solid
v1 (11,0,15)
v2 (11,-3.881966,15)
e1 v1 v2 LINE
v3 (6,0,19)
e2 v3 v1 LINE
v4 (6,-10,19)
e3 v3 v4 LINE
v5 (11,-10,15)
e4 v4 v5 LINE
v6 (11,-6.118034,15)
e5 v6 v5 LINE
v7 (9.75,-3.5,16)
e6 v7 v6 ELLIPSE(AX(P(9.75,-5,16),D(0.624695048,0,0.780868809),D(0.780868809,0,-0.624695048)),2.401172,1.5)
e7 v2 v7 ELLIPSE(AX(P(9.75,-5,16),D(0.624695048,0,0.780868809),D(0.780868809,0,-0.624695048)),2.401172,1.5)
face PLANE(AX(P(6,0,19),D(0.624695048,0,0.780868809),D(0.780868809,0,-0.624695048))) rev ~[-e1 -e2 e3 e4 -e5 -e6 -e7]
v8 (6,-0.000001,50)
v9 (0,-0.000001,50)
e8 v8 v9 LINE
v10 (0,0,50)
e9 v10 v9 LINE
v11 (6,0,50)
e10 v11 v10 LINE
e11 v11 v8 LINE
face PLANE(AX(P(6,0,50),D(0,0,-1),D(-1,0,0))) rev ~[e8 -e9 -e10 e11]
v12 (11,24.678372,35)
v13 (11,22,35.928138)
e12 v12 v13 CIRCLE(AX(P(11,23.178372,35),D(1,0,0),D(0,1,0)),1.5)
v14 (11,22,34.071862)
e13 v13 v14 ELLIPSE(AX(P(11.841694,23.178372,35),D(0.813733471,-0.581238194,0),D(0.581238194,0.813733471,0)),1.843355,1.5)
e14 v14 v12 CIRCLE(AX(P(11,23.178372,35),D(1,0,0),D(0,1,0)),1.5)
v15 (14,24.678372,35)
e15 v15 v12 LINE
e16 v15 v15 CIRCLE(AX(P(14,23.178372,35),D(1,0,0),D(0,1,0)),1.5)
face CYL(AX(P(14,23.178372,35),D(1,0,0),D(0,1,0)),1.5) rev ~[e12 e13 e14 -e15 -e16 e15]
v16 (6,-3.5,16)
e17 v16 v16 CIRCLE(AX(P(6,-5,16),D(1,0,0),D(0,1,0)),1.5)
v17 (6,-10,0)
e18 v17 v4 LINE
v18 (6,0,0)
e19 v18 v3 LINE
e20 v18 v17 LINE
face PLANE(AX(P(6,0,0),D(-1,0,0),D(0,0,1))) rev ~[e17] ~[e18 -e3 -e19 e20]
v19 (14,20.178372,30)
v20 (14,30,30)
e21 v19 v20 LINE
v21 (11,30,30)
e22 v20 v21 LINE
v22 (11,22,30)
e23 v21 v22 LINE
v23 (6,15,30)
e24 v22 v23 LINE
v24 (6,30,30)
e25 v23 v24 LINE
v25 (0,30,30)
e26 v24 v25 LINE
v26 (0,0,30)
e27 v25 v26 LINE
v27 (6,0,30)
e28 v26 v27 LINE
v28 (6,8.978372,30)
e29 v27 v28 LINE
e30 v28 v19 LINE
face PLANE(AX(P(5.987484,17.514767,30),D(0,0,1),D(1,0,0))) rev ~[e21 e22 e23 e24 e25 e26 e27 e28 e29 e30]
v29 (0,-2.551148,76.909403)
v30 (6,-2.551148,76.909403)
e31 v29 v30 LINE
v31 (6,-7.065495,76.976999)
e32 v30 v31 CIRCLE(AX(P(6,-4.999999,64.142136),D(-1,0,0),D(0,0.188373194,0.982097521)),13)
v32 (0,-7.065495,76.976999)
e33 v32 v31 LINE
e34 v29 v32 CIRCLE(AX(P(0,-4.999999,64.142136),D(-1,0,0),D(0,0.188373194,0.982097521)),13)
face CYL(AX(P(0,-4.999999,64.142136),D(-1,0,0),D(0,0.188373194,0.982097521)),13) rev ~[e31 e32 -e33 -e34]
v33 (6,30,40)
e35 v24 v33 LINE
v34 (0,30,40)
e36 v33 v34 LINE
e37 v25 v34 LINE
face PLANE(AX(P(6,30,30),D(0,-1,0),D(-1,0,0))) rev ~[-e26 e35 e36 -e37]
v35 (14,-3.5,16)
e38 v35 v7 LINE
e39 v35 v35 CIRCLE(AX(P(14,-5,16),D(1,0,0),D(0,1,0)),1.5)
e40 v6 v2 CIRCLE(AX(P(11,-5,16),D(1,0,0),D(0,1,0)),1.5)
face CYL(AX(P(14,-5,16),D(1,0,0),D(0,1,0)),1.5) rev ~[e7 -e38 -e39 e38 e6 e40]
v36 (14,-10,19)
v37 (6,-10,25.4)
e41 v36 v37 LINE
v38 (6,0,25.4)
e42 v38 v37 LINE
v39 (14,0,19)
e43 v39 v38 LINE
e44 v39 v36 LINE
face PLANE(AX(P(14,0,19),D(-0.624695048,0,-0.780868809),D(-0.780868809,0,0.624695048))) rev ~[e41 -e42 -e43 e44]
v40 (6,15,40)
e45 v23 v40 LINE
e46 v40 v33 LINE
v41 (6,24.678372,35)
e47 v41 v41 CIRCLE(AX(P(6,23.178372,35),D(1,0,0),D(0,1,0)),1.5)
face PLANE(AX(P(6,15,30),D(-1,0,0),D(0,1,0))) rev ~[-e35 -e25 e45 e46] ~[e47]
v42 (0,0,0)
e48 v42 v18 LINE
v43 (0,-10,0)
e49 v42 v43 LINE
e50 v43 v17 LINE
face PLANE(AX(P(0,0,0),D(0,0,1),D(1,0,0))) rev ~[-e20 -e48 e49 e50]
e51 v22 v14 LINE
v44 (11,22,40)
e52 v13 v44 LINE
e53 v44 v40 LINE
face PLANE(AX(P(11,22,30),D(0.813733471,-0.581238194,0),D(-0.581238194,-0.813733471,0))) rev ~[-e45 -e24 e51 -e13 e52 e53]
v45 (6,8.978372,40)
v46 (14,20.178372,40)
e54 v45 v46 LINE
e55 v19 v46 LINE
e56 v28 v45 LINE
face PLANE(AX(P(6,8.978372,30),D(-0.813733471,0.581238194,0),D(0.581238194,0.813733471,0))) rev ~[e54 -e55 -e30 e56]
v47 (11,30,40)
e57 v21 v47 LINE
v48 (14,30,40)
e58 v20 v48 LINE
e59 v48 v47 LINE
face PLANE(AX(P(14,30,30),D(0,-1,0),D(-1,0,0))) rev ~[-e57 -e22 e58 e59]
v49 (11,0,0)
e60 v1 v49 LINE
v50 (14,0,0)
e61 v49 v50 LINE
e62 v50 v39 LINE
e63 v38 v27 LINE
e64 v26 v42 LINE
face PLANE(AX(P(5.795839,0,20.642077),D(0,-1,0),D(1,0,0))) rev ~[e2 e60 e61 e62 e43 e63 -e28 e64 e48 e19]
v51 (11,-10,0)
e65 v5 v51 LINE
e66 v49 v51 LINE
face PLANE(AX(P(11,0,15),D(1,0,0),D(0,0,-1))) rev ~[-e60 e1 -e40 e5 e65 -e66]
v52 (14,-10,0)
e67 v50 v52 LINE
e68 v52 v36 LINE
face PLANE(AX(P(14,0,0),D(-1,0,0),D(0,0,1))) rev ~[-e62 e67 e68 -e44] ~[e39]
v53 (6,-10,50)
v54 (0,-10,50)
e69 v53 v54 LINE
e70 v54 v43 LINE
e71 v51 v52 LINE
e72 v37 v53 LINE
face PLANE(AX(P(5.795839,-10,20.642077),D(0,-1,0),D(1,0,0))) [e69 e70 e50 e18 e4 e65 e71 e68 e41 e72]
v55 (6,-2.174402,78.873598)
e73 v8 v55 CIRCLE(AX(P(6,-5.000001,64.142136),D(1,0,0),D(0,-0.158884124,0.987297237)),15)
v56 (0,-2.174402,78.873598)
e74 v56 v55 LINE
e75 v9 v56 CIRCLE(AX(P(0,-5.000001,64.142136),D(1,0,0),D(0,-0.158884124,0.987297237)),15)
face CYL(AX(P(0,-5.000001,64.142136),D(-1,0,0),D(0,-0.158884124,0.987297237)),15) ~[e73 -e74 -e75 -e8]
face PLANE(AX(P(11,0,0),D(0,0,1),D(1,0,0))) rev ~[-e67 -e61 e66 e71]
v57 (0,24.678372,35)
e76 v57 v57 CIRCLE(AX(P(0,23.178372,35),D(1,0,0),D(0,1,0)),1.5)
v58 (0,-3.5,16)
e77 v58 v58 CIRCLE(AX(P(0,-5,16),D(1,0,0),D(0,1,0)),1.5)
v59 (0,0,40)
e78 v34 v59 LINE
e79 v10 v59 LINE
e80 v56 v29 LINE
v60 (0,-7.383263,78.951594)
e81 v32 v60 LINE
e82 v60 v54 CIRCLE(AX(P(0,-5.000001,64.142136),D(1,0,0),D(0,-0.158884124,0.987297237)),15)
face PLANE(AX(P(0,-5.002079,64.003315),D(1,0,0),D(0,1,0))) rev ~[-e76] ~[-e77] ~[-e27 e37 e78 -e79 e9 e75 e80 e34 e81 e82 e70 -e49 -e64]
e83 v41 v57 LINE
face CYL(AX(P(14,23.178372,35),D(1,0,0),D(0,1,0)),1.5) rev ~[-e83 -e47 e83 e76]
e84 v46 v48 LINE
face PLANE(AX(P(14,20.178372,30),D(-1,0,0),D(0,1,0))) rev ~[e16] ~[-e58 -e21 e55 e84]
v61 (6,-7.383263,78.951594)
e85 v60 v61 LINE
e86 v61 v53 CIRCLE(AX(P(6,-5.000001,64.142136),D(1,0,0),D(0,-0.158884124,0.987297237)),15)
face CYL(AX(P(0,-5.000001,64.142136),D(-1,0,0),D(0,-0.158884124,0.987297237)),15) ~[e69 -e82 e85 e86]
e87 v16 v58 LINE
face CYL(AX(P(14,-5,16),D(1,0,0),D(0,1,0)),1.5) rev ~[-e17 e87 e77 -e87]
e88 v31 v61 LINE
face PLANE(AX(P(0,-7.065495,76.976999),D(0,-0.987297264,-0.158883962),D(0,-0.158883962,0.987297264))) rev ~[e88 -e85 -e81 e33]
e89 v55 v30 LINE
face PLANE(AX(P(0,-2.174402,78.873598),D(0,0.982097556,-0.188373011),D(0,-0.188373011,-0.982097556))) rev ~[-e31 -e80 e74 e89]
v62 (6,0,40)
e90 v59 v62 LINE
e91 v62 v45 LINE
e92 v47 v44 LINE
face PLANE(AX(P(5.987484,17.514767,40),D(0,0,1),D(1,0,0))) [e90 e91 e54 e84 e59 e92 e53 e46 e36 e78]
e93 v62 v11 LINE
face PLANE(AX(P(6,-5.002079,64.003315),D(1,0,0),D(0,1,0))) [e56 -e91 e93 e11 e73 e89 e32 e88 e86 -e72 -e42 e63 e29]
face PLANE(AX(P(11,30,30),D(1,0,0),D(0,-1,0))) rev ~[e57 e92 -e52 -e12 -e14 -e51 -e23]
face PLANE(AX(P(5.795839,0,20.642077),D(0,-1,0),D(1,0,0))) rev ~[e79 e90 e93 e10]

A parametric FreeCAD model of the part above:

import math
import FreeCAD as App
import Part
import Sketcher
Q = App.Units.Quantity


def add_polygon(sketch, points):
    """Adds a closed chain of lines whose ends are joined by coincident constraints."""
    first, n = sketch.GeometryCount, len(points)
    for a, b in zip(points, points[1:] + points[:1]):
        sketch.addGeometry(Part.LineSegment(App.Vector(*a, 0), App.Vector(*b, 0)), False)
    for i in range(n):
        sketch.addConstraint(Sketcher.Constraint("Coincident", first + i, 2, first + (i + 1) % n, 1))

doc = App.newDocument("Part")
body = doc.addObject("PartDesign::Body", "Body")

sketch1 = doc.addObject("Sketcher::SketchObject", "Sketch")
body.addObject(sketch1)
sketch1.AttachmentSupport = (doc.XZ_Plane, [""])
sketch1.MapMode = "FlatFace"
add_polygon(sketch1, [(0, 50), (0, 0), (6, 0), (6, 19), (11, 15), (11, 0), (14, 0), (14, 19), (6, 25.4), (6, 50)])
sketch1.addConstraint([
    Sketcher.Constraint("Vertical", 0),
    Sketcher.Constraint("Horizontal", 1),
    Sketcher.Constraint("Vertical", 2),
    Sketcher.Constraint("Vertical", 4),
    Sketcher.Constraint("Horizontal", 5),
    Sketcher.Constraint("Vertical", 6),
    Sketcher.Constraint("Vertical", 8),
    Sketcher.Constraint("Horizontal", 9),
    Sketcher.Constraint("Coincident", 0, 2, -1, 1),
    Sketcher.Constraint("PointOnObject", 4, 2, -1),
    Sketcher.Constraint("Parallel", 3, 7),
    Sketcher.Constraint("Horizontal", 2, 2, 6, 2),
    Sketcher.Constraint("Vertical", 2, 2, 7, 2),
    Sketcher.Constraint("DistanceX", 1, 1, 1, 2, Q("6 mm")),
    Sketcher.Constraint("DistanceX", 5, 1, 5, 2, Q("3 mm")),
    Sketcher.Constraint("DistanceY", 0, 2, 0, 1, Q("50 mm")),
    Sketcher.Constraint("DistanceY", 2, 1, 2, 2, Q("19 mm")),
    Sketcher.Constraint("DistanceY", 4, 2, 4, 1, Q("15 mm")),
    Sketcher.Constraint("DistanceY", 8, 1, 8, 2, Q("24.6 mm")),
])
pad1 = doc.addObject("PartDesign::Pad", "Pad")
body.addObject(pad1)
pad1.Profile = sketch1
pad1.Length = 10

sketch2 = doc.addObject("Sketcher::SketchObject", "Sketch001")
body.addObject(sketch2)
sketch2.AttachmentSupport = (doc.YZ_Plane, [""])
sketch2.MapMode = "FlatFace"
sketch2.AttachmentOffset = App.Placement(App.Vector(0, 0, 14), App.Rotation())
sketch2.addGeometry(Part.Circle(App.Vector(-5, 16, 0), App.Vector(0, 0, 1), 1.5), False)
sketch2.addConstraint([
    Sketcher.Constraint("Diameter", 0, Q("3 mm")),
    Sketcher.Constraint("DistanceX", 0, 3, -1, 1, Q("5 mm")),
    Sketcher.Constraint("DistanceY", -1, 1, 0, 3, Q("16 mm")),
])
pocket1 = doc.addObject("PartDesign::Pocket", "Pocket")
body.addObject(pocket1)
pocket1.Profile = sketch2
pocket1.Length = 25

sketch3 = doc.addObject("Sketcher::SketchObject", "Sketch002")
body.addObject(sketch3)
sketch3.AttachmentSupport = (doc.XY_Plane, [""])
sketch3.MapMode = "FlatFace"
sketch3.AttachmentOffset = App.Placement(App.Vector(0, 0, 30), App.Rotation())
add_polygon(sketch3, [(0, 0), (6, 0), (6, 8.978372), (14, 20.178372), (14, 30), (11, 30), (11, 22), (6, 15), (6, 30), (0, 30)])
sketch3.addConstraint([
    Sketcher.Constraint("Horizontal", 0),
    Sketcher.Constraint("Vertical", 1),
    Sketcher.Constraint("Vertical", 3),
    Sketcher.Constraint("Horizontal", 4),
    Sketcher.Constraint("Vertical", 5),
    Sketcher.Constraint("Vertical", 7),
    Sketcher.Constraint("Horizontal", 8),
    Sketcher.Constraint("Vertical", 9),
    Sketcher.Constraint("Coincident", 9, 2, -1, 1),
    Sketcher.Constraint("Parallel", 2, 6),
    Sketcher.Constraint("Horizontal", 4, 2, 7, 2),
    Sketcher.Constraint("Vertical", 1, 2, 6, 2),
    Sketcher.Constraint("DistanceX", 0, 1, 0, 2, Q("6 mm")),
    Sketcher.Constraint("DistanceX", 4, 2, 4, 1, Q("3 mm")),
    Sketcher.Constraint("DistanceY", 5, 2, 5, 1, Q("8 mm")),
    Sketcher.Constraint("DistanceY", 7, 1, 7, 2, Q("15 mm")),
    Sketcher.Constraint("DistanceY", 9, 2, 9, 1, Q("30 mm")),
    Sketcher.Constraint("DistanceX", -1, 1, 2, 2, Q("14 mm")),
    Sketcher.Constraint("DistanceY", 1, 1, 1, 2, Q("8.978372 mm")),
])
pad2 = doc.addObject("PartDesign::Pad", "Pad001")
body.addObject(pad2)
pad2.Profile = sketch3
pad2.Length = 10

sketch4 = doc.addObject("Sketcher::SketchObject", "Sketch003")
body.addObject(sketch4)
sketch4.AttachmentSupport = (doc.YZ_Plane, [""])
sketch4.MapMode = "FlatFace"
sketch4.AttachmentOffset = App.Placement(App.Vector(0, 0, 14), App.Rotation())
sketch4.addGeometry(Part.Circle(App.Vector(23.178372, 35, 0), App.Vector(0, 0, 1), 1.5), False)
sketch4.addConstraint([
    Sketcher.Constraint("Diameter", 0, Q("3 mm")),
    Sketcher.Constraint("DistanceY", -1, 1, 0, 3, Q("35 mm")),
    Sketcher.Constraint("DistanceX", -1, 1, 0, 3, Q("23.178372 mm")),
])
pocket2 = doc.addObject("PartDesign::Pocket", "Pocket001")
body.addObject(pocket2)
pocket2.Profile = sketch4
pocket2.Length = 25

sketch5 = doc.addObject("Sketcher::SketchObject", "Sketch004")
body.addObject(sketch5)
sketch5.AttachmentSupport = (doc.YZ_Plane, [""])
sketch5.MapMode = "FlatFace"
sketch5.addGeometry([
    Part.LineSegment(App.Vector(-7.065495, 76.976999, 0), App.Vector(-7.383263, 78.951594, 0)),
    Part.ArcOfCircle(Part.Circle(App.Vector(-5.000001, 64.142136, 0), App.Vector(0, 0, 1), 15), math.radians(99.142133), math.radians(439.142134)),
    Part.LineSegment(App.Vector(-2.174402, 78.873598, 0), App.Vector(-2.551148, 76.909403, 0)),
    Part.ArcOfCircle(Part.Circle(App.Vector(-4.999999, 64.142136, 0), App.Vector(0, 0, 1), 13), math.radians(99.142142), math.radians(439.142139)),
], False)
sketch5.addConstraint([
    Sketcher.Constraint("Coincident", 0, 2, 1, 1),
    Sketcher.Constraint("Coincident", 1, 2, 2, 1),
    Sketcher.Constraint("Coincident", 2, 2, 3, 2),
    Sketcher.Constraint("Coincident", 3, 1, 0, 1),
    Sketcher.Constraint("Coincident", 3, 3, 1, 3),
    Sketcher.Constraint("Radius", 1, Q("15 mm")),
    Sketcher.Constraint("Radius", 3, Q("13 mm")),
    Sketcher.Constraint("DistanceX", 1, 3, -1, 1, Q("5.000001 mm")),
    Sketcher.Constraint("DistanceY", -1, 1, 3, 1, Q("76.976999 mm")),
    Sketcher.Constraint("DistanceX", 1, 2, -1, 1, Q("2.174402 mm")),
    Sketcher.Constraint("DistanceY", -1, 1, 1, 2, Q("78.873598 mm")),
    Sketcher.Constraint("DistanceX", 2, 2, -1, 1, Q("2.551148 mm")),
    Sketcher.Constraint("DistanceX", 0, 2, 1, 3, Q("2.383262 mm")),
])
pad3 = doc.addObject("PartDesign::Pad", "Pad002")
body.addObject(pad3)
pad3.Profile = sketch5
pad3.Length = 6

doc.recompute()
